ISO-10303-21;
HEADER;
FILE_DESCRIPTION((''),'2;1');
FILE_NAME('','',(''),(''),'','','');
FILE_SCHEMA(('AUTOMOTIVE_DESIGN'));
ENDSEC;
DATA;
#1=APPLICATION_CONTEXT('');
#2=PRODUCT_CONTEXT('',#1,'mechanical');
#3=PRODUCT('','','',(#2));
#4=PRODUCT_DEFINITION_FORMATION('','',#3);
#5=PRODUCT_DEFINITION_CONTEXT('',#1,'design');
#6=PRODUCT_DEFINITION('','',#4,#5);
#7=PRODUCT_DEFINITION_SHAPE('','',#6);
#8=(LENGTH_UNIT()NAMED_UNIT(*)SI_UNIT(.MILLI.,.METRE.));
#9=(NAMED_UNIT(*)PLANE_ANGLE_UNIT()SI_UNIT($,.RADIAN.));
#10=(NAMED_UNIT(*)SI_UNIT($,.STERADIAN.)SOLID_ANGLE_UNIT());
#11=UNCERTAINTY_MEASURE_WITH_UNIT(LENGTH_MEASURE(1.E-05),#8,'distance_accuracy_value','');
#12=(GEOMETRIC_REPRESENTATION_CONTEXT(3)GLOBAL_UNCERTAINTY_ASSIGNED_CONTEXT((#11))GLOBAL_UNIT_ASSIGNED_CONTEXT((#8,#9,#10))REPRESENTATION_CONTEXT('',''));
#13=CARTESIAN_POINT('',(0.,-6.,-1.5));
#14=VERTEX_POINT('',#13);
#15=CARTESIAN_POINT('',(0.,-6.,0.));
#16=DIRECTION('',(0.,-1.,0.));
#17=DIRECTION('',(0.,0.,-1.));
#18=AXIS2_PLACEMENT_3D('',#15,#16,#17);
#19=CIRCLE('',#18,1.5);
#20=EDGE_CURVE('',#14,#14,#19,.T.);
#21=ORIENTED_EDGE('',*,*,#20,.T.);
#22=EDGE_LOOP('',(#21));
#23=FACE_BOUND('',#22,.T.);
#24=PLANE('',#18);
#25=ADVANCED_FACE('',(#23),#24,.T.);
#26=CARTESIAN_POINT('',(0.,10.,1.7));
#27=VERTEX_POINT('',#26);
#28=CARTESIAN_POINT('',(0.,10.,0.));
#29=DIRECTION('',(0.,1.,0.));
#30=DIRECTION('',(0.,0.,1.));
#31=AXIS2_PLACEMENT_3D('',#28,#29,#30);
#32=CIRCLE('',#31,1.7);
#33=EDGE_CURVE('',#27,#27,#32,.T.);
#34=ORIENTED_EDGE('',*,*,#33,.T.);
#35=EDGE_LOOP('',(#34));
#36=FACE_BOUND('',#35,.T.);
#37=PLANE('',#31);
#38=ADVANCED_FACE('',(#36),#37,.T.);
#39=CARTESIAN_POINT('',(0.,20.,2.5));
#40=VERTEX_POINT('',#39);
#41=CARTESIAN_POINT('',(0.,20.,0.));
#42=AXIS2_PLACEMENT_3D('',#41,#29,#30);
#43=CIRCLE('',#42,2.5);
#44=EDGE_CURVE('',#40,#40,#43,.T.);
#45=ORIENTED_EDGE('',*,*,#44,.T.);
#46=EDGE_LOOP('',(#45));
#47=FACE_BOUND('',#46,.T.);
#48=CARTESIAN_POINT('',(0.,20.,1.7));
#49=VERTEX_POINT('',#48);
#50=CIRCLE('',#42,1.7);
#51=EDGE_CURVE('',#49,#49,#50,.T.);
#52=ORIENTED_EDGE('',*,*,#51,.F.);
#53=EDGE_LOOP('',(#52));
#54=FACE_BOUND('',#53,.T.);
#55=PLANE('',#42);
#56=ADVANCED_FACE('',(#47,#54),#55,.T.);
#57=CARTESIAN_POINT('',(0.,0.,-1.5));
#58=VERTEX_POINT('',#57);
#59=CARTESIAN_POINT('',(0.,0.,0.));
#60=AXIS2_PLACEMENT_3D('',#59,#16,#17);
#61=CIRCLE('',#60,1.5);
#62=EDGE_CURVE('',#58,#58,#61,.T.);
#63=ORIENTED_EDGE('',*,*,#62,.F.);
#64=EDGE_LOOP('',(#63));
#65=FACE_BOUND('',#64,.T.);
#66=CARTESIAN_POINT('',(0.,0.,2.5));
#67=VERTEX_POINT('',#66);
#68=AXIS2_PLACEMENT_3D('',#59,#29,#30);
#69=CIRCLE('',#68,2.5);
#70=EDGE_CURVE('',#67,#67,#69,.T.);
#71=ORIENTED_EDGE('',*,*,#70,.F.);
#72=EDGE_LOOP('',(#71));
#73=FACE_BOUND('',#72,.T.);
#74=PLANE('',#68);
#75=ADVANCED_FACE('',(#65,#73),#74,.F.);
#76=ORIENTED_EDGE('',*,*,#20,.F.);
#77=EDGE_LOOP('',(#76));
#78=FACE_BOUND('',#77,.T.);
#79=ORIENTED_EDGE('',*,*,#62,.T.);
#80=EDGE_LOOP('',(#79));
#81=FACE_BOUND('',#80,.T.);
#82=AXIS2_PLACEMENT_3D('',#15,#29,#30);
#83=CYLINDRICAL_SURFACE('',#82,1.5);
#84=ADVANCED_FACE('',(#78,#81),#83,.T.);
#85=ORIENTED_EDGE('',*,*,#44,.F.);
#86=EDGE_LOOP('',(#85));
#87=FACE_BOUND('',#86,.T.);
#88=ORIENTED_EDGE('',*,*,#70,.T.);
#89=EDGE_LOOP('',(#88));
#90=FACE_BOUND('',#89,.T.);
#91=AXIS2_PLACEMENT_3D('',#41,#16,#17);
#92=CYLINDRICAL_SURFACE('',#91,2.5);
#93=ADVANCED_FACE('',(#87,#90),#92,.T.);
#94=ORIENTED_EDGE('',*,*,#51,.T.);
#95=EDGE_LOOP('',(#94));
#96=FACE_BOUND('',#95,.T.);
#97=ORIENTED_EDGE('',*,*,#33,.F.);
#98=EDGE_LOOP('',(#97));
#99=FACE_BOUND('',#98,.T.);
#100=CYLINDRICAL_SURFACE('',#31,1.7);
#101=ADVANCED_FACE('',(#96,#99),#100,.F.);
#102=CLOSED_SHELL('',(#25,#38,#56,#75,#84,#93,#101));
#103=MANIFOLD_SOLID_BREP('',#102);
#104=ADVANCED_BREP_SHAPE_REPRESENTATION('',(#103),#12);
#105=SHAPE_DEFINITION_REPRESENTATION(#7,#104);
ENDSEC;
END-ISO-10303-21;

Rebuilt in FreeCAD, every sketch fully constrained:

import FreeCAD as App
import Part
import Sketcher
Q = App.Units.Quantity

doc = App.newDocument("Part")
body = doc.addObject("PartDesign::Body", "Body")

sketch1 = doc.addObject("Sketcher::SketchObject", "Sketch")
body.addObject(sketch1)
sketch1.AttachmentSupport = (doc.XZ_Plane, [""])
sketch1.MapMode = "FlatFace"
sketch1.addGeometry(Part.Circle(App.Vector(0, 0, 0), App.Vector(0, 0, 1), 2.5), False)
sketch1.addConstraint(Sketcher.Constraint("Coincident", 0, 3, -1, 1))
sketch1.addConstraint(Sketcher.Constraint("Diameter", 0, Q("5 mm")))
pad1 = doc.addObject("PartDesign::Pad", "Pad")
body.addObject(pad1)
pad1.Profile = sketch1
pad1.Length = 20
pad1.Reversed = True

sketch2 = doc.addObject("Sketcher::SketchObject", "Sketch001")
body.addObject(sketch2)
sketch2.AttachmentSupport = (doc.XZ_Plane, [""])
sketch2.MapMode = "FlatFace"
sketch2.addGeometry(Part.Circle(App.Vector(0, 0, 0), App.Vector(0, 0, 1), 1.5), False)
sketch2.addConstraint(Sketcher.Constraint("Coincident", 0, 3, -1, 1))
sketch2.addConstraint(Sketcher.Constraint("Diameter", 0, Q("3 mm")))
pad2 = doc.addObject("PartDesign::Pad", "Pad001")
body.addObject(pad2)
pad2.Profile = sketch2
pad2.Length = 6

sketch3 = doc.addObject("Sketcher::SketchObject", "Sketch002")
body.addObject(sketch3)
sketch3.AttachmentSupport = (doc.XZ_Plane, [""])
sketch3.MapMode = "FlatFace"
sketch3.AttachmentOffset = App.Placement(App.Vector(0, 0, -20), App.Rotation())
sketch3.addGeometry(Part.Circle(App.Vector(0, 0, 0), App.Vector(0, 0, 1), 1.7), False)
sketch3.addConstraint(Sketcher.Constraint("Coincident", 0, 3, -1, 1))
sketch3.addConstraint(Sketcher.Constraint("Diameter", 0, Q("3.4 mm")))
pocket1 = doc.addObject("PartDesign::Pocket", "Pocket")
body.addObject(pocket1)
pocket1.Profile = sketch3
pocket1.Length = 10
pocket1.Reversed = True

doc.recompute()
